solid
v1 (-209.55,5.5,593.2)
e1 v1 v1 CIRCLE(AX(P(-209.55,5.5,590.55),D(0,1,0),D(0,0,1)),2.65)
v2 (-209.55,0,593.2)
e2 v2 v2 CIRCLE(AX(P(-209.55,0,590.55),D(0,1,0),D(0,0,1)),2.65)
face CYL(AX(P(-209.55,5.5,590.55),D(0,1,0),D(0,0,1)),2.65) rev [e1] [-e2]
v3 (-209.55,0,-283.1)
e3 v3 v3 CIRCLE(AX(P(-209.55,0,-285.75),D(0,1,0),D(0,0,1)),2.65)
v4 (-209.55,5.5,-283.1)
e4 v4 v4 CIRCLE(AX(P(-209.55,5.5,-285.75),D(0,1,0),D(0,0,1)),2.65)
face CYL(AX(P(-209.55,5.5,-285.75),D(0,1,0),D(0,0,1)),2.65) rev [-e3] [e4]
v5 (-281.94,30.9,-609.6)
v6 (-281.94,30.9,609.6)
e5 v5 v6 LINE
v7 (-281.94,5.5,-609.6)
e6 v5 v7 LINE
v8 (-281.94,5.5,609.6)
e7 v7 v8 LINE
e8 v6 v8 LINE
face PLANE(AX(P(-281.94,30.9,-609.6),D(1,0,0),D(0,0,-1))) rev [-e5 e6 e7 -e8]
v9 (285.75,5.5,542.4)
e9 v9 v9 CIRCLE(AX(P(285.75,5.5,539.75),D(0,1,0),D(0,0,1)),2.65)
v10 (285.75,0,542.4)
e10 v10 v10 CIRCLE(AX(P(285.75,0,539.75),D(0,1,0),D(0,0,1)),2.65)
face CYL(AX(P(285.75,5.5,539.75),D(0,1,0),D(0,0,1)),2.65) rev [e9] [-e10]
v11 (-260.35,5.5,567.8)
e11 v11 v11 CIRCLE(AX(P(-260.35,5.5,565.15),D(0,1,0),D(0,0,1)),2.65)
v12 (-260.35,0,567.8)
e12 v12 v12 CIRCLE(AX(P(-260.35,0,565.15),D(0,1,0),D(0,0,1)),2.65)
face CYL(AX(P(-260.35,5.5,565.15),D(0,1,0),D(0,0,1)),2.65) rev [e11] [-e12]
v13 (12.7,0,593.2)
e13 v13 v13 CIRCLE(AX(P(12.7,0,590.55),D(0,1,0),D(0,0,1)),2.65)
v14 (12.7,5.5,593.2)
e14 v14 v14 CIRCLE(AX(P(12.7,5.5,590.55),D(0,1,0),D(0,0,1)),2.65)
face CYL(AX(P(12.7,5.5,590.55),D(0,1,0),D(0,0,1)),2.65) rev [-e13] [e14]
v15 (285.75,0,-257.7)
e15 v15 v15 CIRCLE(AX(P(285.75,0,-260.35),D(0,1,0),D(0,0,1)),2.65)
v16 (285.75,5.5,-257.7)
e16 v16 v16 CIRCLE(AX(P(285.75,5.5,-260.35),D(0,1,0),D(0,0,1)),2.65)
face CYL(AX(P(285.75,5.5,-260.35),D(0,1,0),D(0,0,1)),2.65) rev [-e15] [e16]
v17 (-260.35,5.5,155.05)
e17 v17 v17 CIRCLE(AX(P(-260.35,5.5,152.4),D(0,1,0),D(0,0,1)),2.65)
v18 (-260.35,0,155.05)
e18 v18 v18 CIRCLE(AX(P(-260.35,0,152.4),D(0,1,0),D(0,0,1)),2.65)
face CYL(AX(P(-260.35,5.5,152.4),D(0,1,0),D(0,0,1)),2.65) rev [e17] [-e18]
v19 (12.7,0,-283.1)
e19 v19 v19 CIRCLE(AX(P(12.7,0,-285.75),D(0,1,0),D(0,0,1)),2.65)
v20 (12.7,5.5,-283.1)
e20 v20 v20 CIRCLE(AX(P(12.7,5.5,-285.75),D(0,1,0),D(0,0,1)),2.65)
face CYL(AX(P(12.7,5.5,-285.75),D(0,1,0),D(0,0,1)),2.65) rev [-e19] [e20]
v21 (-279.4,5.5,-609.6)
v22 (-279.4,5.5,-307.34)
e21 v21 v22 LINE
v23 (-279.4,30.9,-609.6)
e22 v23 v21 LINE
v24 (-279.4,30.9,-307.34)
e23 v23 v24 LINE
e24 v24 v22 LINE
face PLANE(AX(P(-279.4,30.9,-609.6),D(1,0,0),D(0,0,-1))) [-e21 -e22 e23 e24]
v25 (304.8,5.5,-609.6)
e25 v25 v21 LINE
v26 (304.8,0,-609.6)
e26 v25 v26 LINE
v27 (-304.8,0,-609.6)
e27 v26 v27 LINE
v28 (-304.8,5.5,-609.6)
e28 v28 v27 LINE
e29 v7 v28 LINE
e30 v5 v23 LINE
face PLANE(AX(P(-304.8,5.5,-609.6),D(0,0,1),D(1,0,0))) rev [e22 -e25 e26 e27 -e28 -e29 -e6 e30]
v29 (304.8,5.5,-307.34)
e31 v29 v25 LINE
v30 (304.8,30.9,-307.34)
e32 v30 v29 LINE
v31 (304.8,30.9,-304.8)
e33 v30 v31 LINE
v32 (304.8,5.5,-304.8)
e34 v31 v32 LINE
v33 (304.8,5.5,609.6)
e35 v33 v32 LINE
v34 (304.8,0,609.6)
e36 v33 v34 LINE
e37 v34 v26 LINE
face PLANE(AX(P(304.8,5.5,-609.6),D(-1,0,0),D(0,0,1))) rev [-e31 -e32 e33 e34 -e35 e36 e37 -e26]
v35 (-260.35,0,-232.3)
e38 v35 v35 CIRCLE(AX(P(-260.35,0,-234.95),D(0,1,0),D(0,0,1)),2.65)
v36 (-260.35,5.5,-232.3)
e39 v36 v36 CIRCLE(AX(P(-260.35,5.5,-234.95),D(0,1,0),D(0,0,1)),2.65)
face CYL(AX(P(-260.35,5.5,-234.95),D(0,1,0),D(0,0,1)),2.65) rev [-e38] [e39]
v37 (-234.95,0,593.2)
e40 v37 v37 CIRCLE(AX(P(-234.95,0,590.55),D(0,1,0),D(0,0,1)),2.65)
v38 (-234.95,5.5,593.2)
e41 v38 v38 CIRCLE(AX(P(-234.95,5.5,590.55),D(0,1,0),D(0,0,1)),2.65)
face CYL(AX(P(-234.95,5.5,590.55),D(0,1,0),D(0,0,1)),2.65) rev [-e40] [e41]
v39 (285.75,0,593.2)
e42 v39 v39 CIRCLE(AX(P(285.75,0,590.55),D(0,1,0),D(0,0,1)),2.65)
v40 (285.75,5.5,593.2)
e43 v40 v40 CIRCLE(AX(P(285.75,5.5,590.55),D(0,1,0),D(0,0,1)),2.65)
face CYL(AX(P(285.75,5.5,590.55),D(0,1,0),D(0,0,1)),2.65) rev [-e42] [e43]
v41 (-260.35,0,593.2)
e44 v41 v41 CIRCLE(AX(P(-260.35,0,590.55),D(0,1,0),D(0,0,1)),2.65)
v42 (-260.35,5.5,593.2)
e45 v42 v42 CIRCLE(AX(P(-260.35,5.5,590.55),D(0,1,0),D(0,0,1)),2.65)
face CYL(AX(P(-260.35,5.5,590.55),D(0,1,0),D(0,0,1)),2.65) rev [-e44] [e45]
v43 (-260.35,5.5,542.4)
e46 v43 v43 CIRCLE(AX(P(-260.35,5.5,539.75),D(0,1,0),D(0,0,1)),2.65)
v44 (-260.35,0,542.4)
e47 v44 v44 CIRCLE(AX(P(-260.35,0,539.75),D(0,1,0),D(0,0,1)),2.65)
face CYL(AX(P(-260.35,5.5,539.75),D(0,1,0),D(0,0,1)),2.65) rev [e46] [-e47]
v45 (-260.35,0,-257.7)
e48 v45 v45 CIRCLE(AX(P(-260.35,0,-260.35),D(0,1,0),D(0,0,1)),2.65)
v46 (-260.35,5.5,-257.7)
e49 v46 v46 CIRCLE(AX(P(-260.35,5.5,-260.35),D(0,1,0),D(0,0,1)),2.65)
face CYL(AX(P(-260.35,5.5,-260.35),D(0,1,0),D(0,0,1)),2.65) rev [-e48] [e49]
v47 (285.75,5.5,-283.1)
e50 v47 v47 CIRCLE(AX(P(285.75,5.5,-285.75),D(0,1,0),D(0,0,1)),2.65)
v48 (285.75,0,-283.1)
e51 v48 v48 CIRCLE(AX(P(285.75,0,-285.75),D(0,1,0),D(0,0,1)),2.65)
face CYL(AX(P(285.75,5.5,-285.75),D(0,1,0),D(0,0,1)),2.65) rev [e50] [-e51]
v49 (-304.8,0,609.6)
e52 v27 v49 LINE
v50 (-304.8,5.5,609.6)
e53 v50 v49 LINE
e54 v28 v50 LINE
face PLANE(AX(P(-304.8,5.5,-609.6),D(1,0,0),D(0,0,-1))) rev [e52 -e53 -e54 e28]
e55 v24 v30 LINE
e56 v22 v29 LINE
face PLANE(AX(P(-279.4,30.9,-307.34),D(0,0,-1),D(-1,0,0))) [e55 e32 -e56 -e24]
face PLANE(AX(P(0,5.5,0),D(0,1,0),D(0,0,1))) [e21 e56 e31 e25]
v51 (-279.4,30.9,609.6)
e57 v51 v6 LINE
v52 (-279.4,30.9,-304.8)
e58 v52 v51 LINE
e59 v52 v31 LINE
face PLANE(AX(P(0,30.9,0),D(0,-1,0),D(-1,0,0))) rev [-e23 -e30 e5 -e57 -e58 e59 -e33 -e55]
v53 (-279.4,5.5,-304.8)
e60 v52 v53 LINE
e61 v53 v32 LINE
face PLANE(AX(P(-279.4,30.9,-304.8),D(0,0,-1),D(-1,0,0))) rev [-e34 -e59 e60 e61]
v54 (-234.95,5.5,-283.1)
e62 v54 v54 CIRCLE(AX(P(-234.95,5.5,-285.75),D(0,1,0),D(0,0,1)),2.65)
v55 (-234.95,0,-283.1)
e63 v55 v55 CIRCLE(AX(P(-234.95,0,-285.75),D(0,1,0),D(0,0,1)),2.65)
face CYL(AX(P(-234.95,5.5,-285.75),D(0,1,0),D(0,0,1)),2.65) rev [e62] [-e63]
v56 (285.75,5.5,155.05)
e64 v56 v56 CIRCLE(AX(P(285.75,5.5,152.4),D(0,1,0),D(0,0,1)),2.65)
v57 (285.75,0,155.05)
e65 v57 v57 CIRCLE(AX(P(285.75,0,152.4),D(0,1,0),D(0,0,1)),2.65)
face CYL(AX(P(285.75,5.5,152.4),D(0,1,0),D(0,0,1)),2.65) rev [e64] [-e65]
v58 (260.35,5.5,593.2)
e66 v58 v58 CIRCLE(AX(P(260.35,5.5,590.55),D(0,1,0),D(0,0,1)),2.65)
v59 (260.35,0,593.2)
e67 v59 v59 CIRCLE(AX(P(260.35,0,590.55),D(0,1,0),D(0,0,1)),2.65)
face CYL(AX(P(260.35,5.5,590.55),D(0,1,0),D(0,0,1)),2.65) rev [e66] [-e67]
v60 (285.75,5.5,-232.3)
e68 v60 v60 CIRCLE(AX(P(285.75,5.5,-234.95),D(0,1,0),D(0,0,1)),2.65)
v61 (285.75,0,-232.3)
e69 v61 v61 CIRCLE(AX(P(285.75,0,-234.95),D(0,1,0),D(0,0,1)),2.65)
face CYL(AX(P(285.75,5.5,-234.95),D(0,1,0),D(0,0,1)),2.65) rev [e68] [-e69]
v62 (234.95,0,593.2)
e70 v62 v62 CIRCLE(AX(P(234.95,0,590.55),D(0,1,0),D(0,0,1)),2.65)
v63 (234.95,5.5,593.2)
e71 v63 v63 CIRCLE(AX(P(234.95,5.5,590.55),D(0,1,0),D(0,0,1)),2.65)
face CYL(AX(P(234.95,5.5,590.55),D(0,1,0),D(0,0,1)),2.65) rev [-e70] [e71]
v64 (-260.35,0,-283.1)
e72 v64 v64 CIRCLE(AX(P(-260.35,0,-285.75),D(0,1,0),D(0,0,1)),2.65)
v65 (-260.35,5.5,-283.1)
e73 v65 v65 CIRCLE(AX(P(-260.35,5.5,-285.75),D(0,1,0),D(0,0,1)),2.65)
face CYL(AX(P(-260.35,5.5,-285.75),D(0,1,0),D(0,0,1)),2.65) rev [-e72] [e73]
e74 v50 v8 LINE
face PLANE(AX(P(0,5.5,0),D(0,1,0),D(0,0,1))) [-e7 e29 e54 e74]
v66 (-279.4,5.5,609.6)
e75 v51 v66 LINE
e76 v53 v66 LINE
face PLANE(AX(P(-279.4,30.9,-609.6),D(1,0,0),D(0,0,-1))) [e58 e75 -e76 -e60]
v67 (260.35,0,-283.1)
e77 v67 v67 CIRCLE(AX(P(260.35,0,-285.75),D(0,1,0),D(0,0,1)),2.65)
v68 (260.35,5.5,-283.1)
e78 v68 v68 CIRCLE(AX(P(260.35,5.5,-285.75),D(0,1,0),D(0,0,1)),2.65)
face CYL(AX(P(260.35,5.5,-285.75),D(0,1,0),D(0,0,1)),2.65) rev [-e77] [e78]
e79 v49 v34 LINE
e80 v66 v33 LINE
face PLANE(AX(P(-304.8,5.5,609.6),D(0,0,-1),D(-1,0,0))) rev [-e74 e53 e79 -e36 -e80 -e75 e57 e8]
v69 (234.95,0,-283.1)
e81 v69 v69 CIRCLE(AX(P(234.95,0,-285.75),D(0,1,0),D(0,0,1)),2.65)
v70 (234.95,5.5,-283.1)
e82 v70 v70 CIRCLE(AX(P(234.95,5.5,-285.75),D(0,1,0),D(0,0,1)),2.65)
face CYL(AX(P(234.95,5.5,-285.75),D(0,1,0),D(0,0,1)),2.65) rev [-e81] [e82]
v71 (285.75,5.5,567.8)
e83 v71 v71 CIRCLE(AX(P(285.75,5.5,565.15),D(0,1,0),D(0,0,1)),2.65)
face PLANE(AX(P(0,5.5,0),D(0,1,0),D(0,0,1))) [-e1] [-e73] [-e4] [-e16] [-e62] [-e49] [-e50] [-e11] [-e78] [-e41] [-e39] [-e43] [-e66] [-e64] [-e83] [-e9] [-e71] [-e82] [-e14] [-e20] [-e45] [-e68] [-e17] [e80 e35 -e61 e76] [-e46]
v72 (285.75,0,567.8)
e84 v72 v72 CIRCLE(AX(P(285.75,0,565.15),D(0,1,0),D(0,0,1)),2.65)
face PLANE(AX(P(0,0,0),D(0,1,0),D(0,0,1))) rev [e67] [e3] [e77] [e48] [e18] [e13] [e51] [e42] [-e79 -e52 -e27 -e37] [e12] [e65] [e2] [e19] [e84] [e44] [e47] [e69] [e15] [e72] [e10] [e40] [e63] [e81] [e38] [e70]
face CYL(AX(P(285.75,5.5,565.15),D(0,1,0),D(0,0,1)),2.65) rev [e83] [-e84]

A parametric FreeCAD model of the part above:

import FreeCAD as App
import Part
import Sketcher

V = App.Vector
Q = App.Units.Quantity

doc = App.newDocument("Part")
params = doc.addObject("Spreadsheet::Sheet", "Params")
for row, (alias, value) in enumerate([
    ("sketch1_width", "24 in"),
    ("sketch1_height", "48 in"),
    ("pad1_length", "5.5 mm"),
    ("sketch2_width", "23 in"),
    ("sketch2_height", "0.1 in"),
    ("pad2_length", "1 in"),
    ("sketch3_height", "48 in"),
    ("sketch3_width", "0.1 in"),
    ("pad3_length", "1 in"),
    ("hole_diameter", "5.3 mm"),
], start=1):
    params.set(f"A{row}", alias)
    params.set(f"B{row}", "=" + value)
    params.setAlias(f"B{row}", alias)

body = doc.addObject("PartDesign::Body", "Body")

# Sketch on XZ plane
sketch1 = doc.addObject("Sketcher::SketchObject", "Sketch")
body.addObject(sketch1)
sketch1.AttachmentSupport = (doc.XZ_Plane, [""])
sketch1.MapMode = "FlatFace"
sketch1.addGeometry([
    Part.LineSegment(V(-305, -610, 0), V(-305, 610, 0)),
    Part.LineSegment(V(-305, 610, 0), V(305, 610, 0)),
    Part.LineSegment(V(305, 610, 0), V(305, -610, 0)),
    Part.LineSegment(V(305, -610, 0), V(-305, -610, 0)),
], False)
sketch1.addConstraint([
    Sketcher.Constraint("Coincident", 0, 2, 1, 1),
    Sketcher.Constraint("Coincident", 1, 2, 2, 1),
    Sketcher.Constraint("Coincident", 2, 2, 3, 1),
    Sketcher.Constraint("Coincident", 3, 2, 0, 1),
    Sketcher.Constraint("Vertical", 0),
    Sketcher.Constraint("Horizontal", 1),
    Sketcher.Constraint("Vertical", 2),
    Sketcher.Constraint("Horizontal", 3),
    Sketcher.Constraint("Symmetric", 0, 2, 2, 2, -1, 1),
    Sketcher.Constraint("DistanceX", 1, 1, 1, 2, Q("24 in")),
    Sketcher.Constraint("DistanceY", 0, 1, 0, 2, Q("48 in")),
])
sketch1.setExpression("Constraints[9]", "Params.sketch1_width")
sketch1.setExpression("Constraints[10]", "Params.sketch1_height")
pad1 = doc.addObject("PartDesign::Pad", "Pad")
body.addObject(pad1)
pad1.Profile = sketch1
pad1.setExpression("Length", "Params.pad1_length")
pad1.Reversed = True

# Sketch on XZ plane
sketch2 = doc.addObject("Sketcher::SketchObject", "Sketch001")
body.addObject(sketch2)
sketch2.AttachmentSupport = (doc.XZ_Plane, [""])
sketch2.MapMode = "FlatFace"
sketch2.AttachmentOffset = App.Placement(V(0, 0, -5.5), App.Rotation())
sketch2.addGeometry([
    Part.LineSegment(V(-279.4, -307.3, 0), V(-279.4, -304.8, 0)),
    Part.LineSegment(V(-279.4, -304.8, 0), V(304.8, -304.8, 0)),
    Part.LineSegment(V(304.8, -304.8, 0), V(304.8, -307.3, 0)),
    Part.LineSegment(V(304.8, -307.3, 0), V(-279.4, -307.3, 0)),
], False)
sketch2.addConstraint([
    Sketcher.Constraint("Coincident", 0, 2, 1, 1),
    Sketcher.Constraint("Coincident", 1, 2, 2, 1),
    Sketcher.Constraint("Coincident", 2, 2, 3, 1),
    Sketcher.Constraint("Coincident", 3, 2, 0, 1),
    Sketcher.Constraint("Vertical", 0),
    Sketcher.Constraint("Horizontal", 1),
    Sketcher.Constraint("Vertical", 2),
    Sketcher.Constraint("Horizontal", 3),
    Sketcher.Constraint("DistanceX", 1, 1, 1, 2, Q("23 in")),
    Sketcher.Constraint("DistanceY", 0, 1, 0, 2, Q("0.1 in")),
    Sketcher.Constraint("DistanceX", 0, 2, -1, 1, Q("11 in")),
    Sketcher.Constraint("DistanceY", 0, 2, -1, 1, Q("12 in")),
])
sketch2.setExpression("Constraints[8]", "Params.sketch2_width")
sketch2.setExpression("Constraints[9]", "Params.sketch2_height")
pad2 = doc.addObject("PartDesign::Pad", "Pad001")
body.addObject(pad2)
pad2.Profile = sketch2
pad2.setExpression("Length", "Params.pad2_length")
pad2.Reversed = True

# Sketch on XZ plane
sketch3 = doc.addObject("Sketcher::SketchObject", "Sketch002")
body.addObject(sketch3)
sketch3.AttachmentSupport = (doc.XZ_Plane, [""])
sketch3.MapMode = "FlatFace"
sketch3.AttachmentOffset = App.Placement(V(0, 0, -5.5), App.Rotation())
sketch3.addGeometry([
    Part.LineSegment(V(-281.9, -609.6, 0), V(-281.9, 609.6, 0)),
    Part.LineSegment(V(-281.9, 609.6, 0), V(-279.4, 609.6, 0)),
    Part.LineSegment(V(-279.4, 609.6, 0), V(-279.4, -609.6, 0)),
    Part.LineSegment(V(-279.4, -609.6, 0), V(-281.9, -609.6, 0)),
], False)
sketch3.addConstraint([
    Sketcher.Constraint("Coincident", 0, 2, 1, 1),
    Sketcher.Constraint("Coincident", 1, 2, 2, 1),
    Sketcher.Constraint("Coincident", 2, 2, 3, 1),
    Sketcher.Constraint("Coincident", 3, 2, 0, 1),
    Sketcher.Constraint("Vertical", 0),
    Sketcher.Constraint("Horizontal", 1),
    Sketcher.Constraint("Vertical", 2),
    Sketcher.Constraint("Horizontal", 3),
    Sketcher.Constraint("DistanceY", 0, 1, 0, 2, Q("48 in")),
    Sketcher.Constraint("DistanceX", 1, 1, 1, 2, Q("0.1 in")),
    Sketcher.Constraint("DistanceY", -1, 1, 0, 2, Q("24 in")),
    Sketcher.Constraint("DistanceX", 1, 2, -1, 1, Q("11 in")),
])
sketch3.setExpression("Constraints[8]", "Params.sketch3_height")
sketch3.setExpression("Constraints[9]", "Params.sketch3_width")
pad3 = doc.addObject("PartDesign::Pad", "Pad002")
body.addObject(pad3)
pad3.Profile = sketch3
pad3.setExpression("Length", "Params.pad3_length")
pad3.Reversed = True

# Sketch on XZ plane
sketch4 = doc.addObject("Sketcher::SketchObject", "Sketch003")
body.addObject(sketch4)
sketch4.AttachmentSupport = (doc.XZ_Plane, [""])
sketch4.MapMode = "FlatFace"
sketch4.AttachmentOffset = App.Placement(V(0, 0, -5.5), App.Rotation())
sketch4.addGeometry([
    Part.Circle(V(-260.4, -285.8, 0), V(0, 0, 1), 2.6),  # 0
    Part.Circle(V(-234.9, -285.8, 0), V(0, 0, 1), 2.6),  # 1
    Part.Circle(V(-209.6, -285.8, 0), V(0, 0, 1), 2.6),  # 2
    Part.Circle(V(-260.4, -260.4, 0), V(0, 0, 1), 2.6),  # 3
    Part.Circle(V(-260.4, -234.9, 0), V(0, 0, 1), 2.6),  # 4
    Part.Circle(V(12.7, -285.8, 0), V(0, 0, 1), 2.6),  # 5
    Part.Circle(V(234.9, -285.8, 0), V(0, 0, 1), 2.6),  # 6
    Part.Circle(V(260.4, -285.8, 0), V(0, 0, 1), 2.6),  # 7
    Part.Circle(V(285.8, -285.8, 0), V(0, 0, 1), 2.6),  # 8
    Part.Circle(V(285.8, -260.4, 0), V(0, 0, 1), 2.6),  # 9
    Part.Circle(V(285.8, -234.9, 0), V(0, 0, 1), 2.6),  # 10
    Part.Circle(V(-260.4, 152.4, 0), V(0, 0, 1), 2.6),  # 11
    Part.Circle(V(285.8, 152.4, 0), V(0, 0, 1), 2.6),  # 12
    Part.Circle(V(-260.4, 539.8, 0), V(0, 0, 1), 2.6),  # 13
    Part.Circle(V(-260.4, 565.1, 0), V(0, 0, 1), 2.6),  # 14
    Part.Circle(V(-260.4, 590.5, 0), V(0, 0, 1), 2.6),  # 15
    Part.Circle(V(-234.9, 590.5, 0), V(0, 0, 1), 2.6),  # 16
    Part.Circle(V(-209.6, 590.5, 0), V(0, 0, 1), 2.6),  # 17
    Part.Circle(V(12.7, 590.5, 0), V(0, 0, 1), 2.6),  # 18
    Part.Circle(V(234.9, 590.5, 0), V(0, 0, 1), 2.6),  # 19
    Part.Circle(V(260.4, 590.5, 0), V(0, 0, 1), 2.6),  # 20
    Part.Circle(V(285.8, 590.5, 0), V(0, 0, 1), 2.6),  # 21
    Part.Circle(V(285.8, 565.1, 0), V(0, 0, 1), 2.6),  # 22
    Part.Circle(V(285.8, 539.8, 0), V(0, 0, 1), 2.6),  # 23
], False)
sketch4.addConstraint([
    Sketcher.Constraint("Equal", 0, 1),
    Sketcher.Constraint("Equal", 1, 2),
    Sketcher.Constraint("Equal", 2, 3),
    Sketcher.Constraint("Equal", 3, 4),
    Sketcher.Constraint("Equal", 4, 5),
    Sketcher.Constraint("Equal", 5, 6),
    Sketcher.Constraint("Equal", 6, 7),
    Sketcher.Constraint("Equal", 7, 8),
    Sketcher.Constraint("Equal", 8, 9),
    Sketcher.Constraint("Equal", 9, 10),
    Sketcher.Constraint("Equal", 10, 11),
    Sketcher.Constraint("Equal", 11, 12),
    Sketcher.Constraint("Equal", 12, 13),
    Sketcher.Constraint("Equal", 13, 14),
    Sketcher.Constraint("Equal", 14, 15),
    Sketcher.Constraint("Equal", 15, 16),
    Sketcher.Constraint("Equal", 16, 17),
    Sketcher.Constraint("Equal", 17, 18),
    Sketcher.Constraint("Equal", 18, 19),
    Sketcher.Constraint("Equal", 19, 20),
    Sketcher.Constraint("Equal", 20, 21),
    Sketcher.Constraint("Equal", 21, 22),
    Sketcher.Constraint("Equal", 22, 23),
    Sketcher.Constraint("Symmetric", 1, 3, 6, 3, -2),
    Sketcher.Constraint("Symmetric", 0, 3, 7, 3, -2),
    Sketcher.Constraint("Symmetric", 16, 3, 19, 3, -2),
    Sketcher.Constraint("Symmetric", 15, 3, 20, 3, -2),
    Sketcher.Constraint("Horizontal", 0, 3, 1, 3),
    Sketcher.Constraint("Horizontal", 1, 3, 2, 3),
    Sketcher.Constraint("Horizontal", 2, 3, 5, 3),
    Sketcher.Constraint("Horizontal", 7, 3, 8, 3),
    Sketcher.Constraint("Horizontal", 3, 3, 9, 3),
    Sketcher.Constraint("Horizontal", 4, 3, 10, 3),
    Sketcher.Constraint("Horizontal", 11, 3, 12, 3),
    Sketcher.Constraint("Horizontal", 15, 3, 16, 3),
    Sketcher.Constraint("Horizontal", 16, 3, 17, 3),
    Sketcher.Constraint("Horizontal", 17, 3, 18, 3),
    Sketcher.Constraint("Horizontal", 20, 3, 21, 3),
    Sketcher.Constraint("Horizontal", 14, 3, 22, 3),
    Sketcher.Constraint("Horizontal", 13, 3, 23, 3),
    Sketcher.Constraint("Vertical", 0, 3, 3, 3),
    Sketcher.Constraint("Vertical", 3, 3, 4, 3),
    Sketcher.Constraint("Vertical", 8, 3, 9, 3),
    Sketcher.Constraint("Vertical", 9, 3, 10, 3),
    Sketcher.Constraint("Vertical", 4, 3, 11, 3),
    Sketcher.Constraint("Vertical", 10, 3, 12, 3),
    Sketcher.Constraint("Vertical", 11, 3, 13, 3),
    Sketcher.Constraint("Vertical", 13, 3, 14, 3),
    Sketcher.Constraint("Vertical", 14, 3, 15, 3),
    Sketcher.Constraint("Vertical", 1, 3, 16, 3),
    Sketcher.Constraint("Vertical", 2, 3, 17, 3),
    Sketcher.Constraint("Vertical", 5, 3, 18, 3),
    Sketcher.Constraint("Vertical", 12, 3, 21, 3),
    Sketcher.Constraint("Vertical", 21, 3, 22, 3),
    Sketcher.Constraint("Vertical", 22, 3, 23, 3),
    Sketcher.Constraint("DistanceY", -1, 1, 11, 3, Q("6 in")),
    Sketcher.Constraint("DistanceX", 0, 3, 1, 3, Q("1 in")),
    Sketcher.Constraint("DistanceX", 1, 3, 2, 3, Q("1 in")),
    Sketcher.Constraint("DistanceY", 0, 3, 3, 3, Q("1 in")),
    Sketcher.Constraint("DistanceY", 3, 3, 4, 3, Q("1 in")),
    Sketcher.Constraint("DistanceX", 7, 3, 8, 3, Q("1 in")),
    Sketcher.Constraint("DistanceY", 13, 3, 14, 3, Q("1 in")),
    Sketcher.Constraint("DistanceY", 14, 3, 15, 3, Q("1 in")),
    Sketcher.Constraint("DistanceX", -1, 1, 5, 3, Q("0.5 in")),
    Sketcher.Constraint("DistanceX", 2, 3, 6, 3, Q("17.5 in")),
    Sketcher.Constraint("DistanceY", 4, 3, 13, 3, Q("30.5 in")),
    Sketcher.Constraint("Diameter", 0, 5.3),
    Sketcher.Constraint("DistanceY", 0, 3, -1, 1, Q("11.25 in")),
])
doc.recompute()
hole = doc.addObject("PartDesign::Hole", "Hole")
body.addObject(hole)
hole.Profile = sketch4
hole.ThreadType = "None"
hole.setExpression("Diameter", "Params.hole_diameter")
hole.DepthType = "ThroughAll"
hole.Reversed = True

doc.recompute()
